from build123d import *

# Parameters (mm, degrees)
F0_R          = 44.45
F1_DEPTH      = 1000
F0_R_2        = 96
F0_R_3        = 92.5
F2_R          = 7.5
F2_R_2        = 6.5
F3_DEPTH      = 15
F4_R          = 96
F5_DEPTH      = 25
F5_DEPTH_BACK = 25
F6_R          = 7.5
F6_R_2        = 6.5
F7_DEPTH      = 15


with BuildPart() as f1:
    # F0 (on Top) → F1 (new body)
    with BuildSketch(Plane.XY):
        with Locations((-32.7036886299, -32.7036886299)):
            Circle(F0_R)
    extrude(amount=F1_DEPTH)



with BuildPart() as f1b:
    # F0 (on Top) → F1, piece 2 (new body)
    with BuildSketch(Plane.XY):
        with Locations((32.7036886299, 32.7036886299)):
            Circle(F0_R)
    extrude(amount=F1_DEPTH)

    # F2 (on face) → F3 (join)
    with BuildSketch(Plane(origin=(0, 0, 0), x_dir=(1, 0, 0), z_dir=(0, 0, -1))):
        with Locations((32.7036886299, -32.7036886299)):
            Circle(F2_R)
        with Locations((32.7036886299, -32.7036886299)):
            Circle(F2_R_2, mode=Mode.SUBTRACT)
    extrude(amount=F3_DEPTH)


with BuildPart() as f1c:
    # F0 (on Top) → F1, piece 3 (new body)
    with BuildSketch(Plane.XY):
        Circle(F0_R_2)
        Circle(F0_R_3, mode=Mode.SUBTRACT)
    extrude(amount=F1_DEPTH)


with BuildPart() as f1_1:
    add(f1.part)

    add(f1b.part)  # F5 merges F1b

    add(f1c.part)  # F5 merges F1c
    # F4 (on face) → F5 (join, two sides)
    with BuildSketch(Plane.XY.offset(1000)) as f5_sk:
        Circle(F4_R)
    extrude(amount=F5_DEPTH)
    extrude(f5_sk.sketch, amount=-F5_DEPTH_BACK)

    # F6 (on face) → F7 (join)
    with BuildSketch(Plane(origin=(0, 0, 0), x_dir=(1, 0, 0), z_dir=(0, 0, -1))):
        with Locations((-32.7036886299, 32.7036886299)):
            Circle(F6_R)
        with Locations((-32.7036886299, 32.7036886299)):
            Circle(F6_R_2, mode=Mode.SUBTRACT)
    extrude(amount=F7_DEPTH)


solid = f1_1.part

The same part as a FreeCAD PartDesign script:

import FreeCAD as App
import Part
import Sketcher

V = App.Vector

doc = App.newDocument("Part")
body = doc.addObject("PartDesign::Body", "Body")

# Sketch on XY plane
sketch1 = body.newObject("Sketcher::SketchObject", "Sketch")
sketch1.AttachmentSupport = (doc.getObject("XY_Plane"), [""])
sketch1.MapMode = "FlatFace"
sketch1.addGeometry(Part.Circle(V(-33, -33, 0), V(0, 0, 1), 44), False)
sketch1.addConstraint(Sketcher.Constraint("Diameter", 0, 88.9))
sketch1.addConstraint(Sketcher.Constraint("DistanceX", 0, 3, -1, 1, 32.703689))
sketch1.addConstraint(Sketcher.Constraint("DistanceY", 0, 3, -1, 1, 32.703689))
pad1 = body.newObject("PartDesign::Pad", "Pad")
pad1.Profile = sketch1
pad1.Length = 1000
body2 = doc.addObject("PartDesign::Body", "Body001")

# Sketch on XY plane
sketch2 = body2.newObject("Sketcher::SketchObject", "Sketch001")
sketch2.AttachmentSupport = (doc.getObject("XY_Plane001"), [""])
sketch2.MapMode = "FlatFace"
sketch2.addGeometry(Part.Circle(V(33, 33, 0), V(0, 0, 1), 44), False)
sketch2.addConstraint(Sketcher.Constraint("Diameter", 0, 88.9))
sketch2.addConstraint(Sketcher.Constraint("DistanceX", -1, 1, 0, 3, 32.703689))
sketch2.addConstraint(Sketcher.Constraint("DistanceY", -1, 1, 0, 3, 32.703689))
pad2 = body2.newObject("PartDesign::Pad", "Pad001")
pad2.Profile = sketch2
pad2.Length = 1000

# Sketch on XY plane
sketch3 = body2.newObject("Sketcher::SketchObject", "Sketch002")
sketch3.AttachmentSupport = (doc.getObject("XY_Plane001"), [""])
sketch3.MapMode = "FlatFace"
sketch3.addGeometry(Part.Circle(V(33, 33, 0), V(0, 0, 1), 8), False)
sketch3.addGeometry(Part.Circle(V(33, 33, 0), V(0, 0, 1), 6), False)
sketch3.addConstraint(Sketcher.Constraint("Coincident", 1, 3, 0, 3))
sketch3.addConstraint(Sketcher.Constraint("Diameter", 0, 15.0))
sketch3.addConstraint(Sketcher.Constraint("Diameter", 1, 13.0))
sketch3.addConstraint(Sketcher.Constraint("DistanceX", -1, 1, 0, 3, 32.703689))
sketch3.addConstraint(Sketcher.Constraint("DistanceY", -1, 1, 0, 3, 32.703689))
pad3 = body2.newObject("PartDesign::Pad", "Pad002")
pad3.Profile = sketch3
pad3.Length = 15
pad3.Reversed = True
body3 = doc.addObject("PartDesign::Body", "Body002")

# Sketch on XY plane
sketch4 = body3.newObject("Sketcher::SketchObject", "Sketch003")
sketch4.AttachmentSupport = (doc.getObject("XY_Plane002"), [""])
sketch4.MapMode = "FlatFace"
sketch4.addGeometry(Part.Circle(V(0, 0, 0), V(0, 0, 1), 96), False)
sketch4.addGeometry(Part.Circle(V(0, 0, 0), V(0, 0, 1), 92), False)
sketch4.addConstraint(Sketcher.Constraint("Coincident", 0, 3, -1, 1))
sketch4.addConstraint(Sketcher.Constraint("Coincident", 1, 3, -1, 1))
sketch4.addConstraint(Sketcher.Constraint("Diameter", 0, 192.0))
sketch4.addConstraint(Sketcher.Constraint("Diameter", 1, 185.0))
pad4 = body3.newObject("PartDesign::Pad", "Pad003")
pad4.Profile = sketch4
pad4.Length = 1000
body.AllowCompound = True
doc.recompute()

boolean = body.newObject("PartDesign::Boolean", "Boolean")
boolean.Type = "Fuse"
boolean.addObjects([body2])
doc.recompute()

boolean2 = body.newObject("PartDesign::Boolean", "Boolean001")
boolean2.Type = "Fuse"
boolean2.addObjects([body3])

# Sketch on XY plane
sketch5 = body.newObject("Sketcher::SketchObject", "Sketch004")
sketch5.AttachmentSupport = (doc.getObject("XY_Plane"), [""])
sketch5.MapMode = "FlatFace"
sketch5.AttachmentOffset = App.Placement(V(0, 0, 1000), App.Rotation())
sketch5.addGeometry(Part.Circle(V(0, 0, 0), V(0, 0, 1), 96), False)
sketch5.addConstraint(Sketcher.Constraint("Coincident", 0, 3, -1, 1))
sketch5.addConstraint(Sketcher.Constraint("Diameter", 0, 192.0))
pad5 = body.newObject("PartDesign::Pad", "Pad004")
pad5.Profile = sketch5
pad5.Type = "TwoLengths"
pad5.Length = 25
pad5.Length2 = 25

# Sketch on XY plane
sketch6 = body.newObject("Sketcher::SketchObject", "Sketch005")
sketch6.AttachmentSupport = (doc.getObject("XY_Plane"), [""])
sketch6.MapMode = "FlatFace"
sketch6.addGeometry(Part.Circle(V(-33, -33, 0), V(0, 0, 1), 8), False)
sketch6.addGeometry(Part.Circle(V(-33, -33, 0), V(0, 0, 1), 6), False)
sketch6.addConstraint(Sketcher.Constraint("Coincident", 1, 3, 0, 3))
sketch6.addConstraint(Sketcher.Constraint("Diameter", 0, 15.0))
sketch6.addConstraint(Sketcher.Constraint("Diameter", 1, 13.0))
sketch6.addConstraint(Sketcher.Constraint("DistanceX", 0, 3, -1, 1, 32.703689))
sketch6.addConstraint(Sketcher.Constraint("DistanceY", 0, 3, -1, 1, 32.703689))
pad6 = body.newObject("PartDesign::Pad", "Pad005")
pad6.Profile = sketch6
pad6.Length = 15
pad6.Reversed = True

doc.recompute()
